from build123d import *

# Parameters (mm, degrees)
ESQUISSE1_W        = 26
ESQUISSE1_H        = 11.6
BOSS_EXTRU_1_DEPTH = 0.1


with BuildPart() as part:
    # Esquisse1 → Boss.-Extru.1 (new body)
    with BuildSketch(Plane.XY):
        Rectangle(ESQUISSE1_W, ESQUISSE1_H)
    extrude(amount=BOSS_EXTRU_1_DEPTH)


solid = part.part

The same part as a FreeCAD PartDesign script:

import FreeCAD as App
import Part
import Sketcher

doc = App.newDocument("Part")
body = doc.addObject("PartDesign::Body", "Body")

sketch1 = body.newObject("Sketcher::SketchObject", "Sketch")
sketch1.AttachmentSupport = (doc.getObject("XY_Plane"), [""])
sketch1.MapMode = "FlatFace"
sketch1.addGeometry([
    Part.LineSegment(App.Vector(-13, 6, 0), App.Vector(-13, -6, 0)),
    Part.LineSegment(App.Vector(-13, -6, 0), App.Vector(13, -6, 0)),
    Part.LineSegment(App.Vector(13, -6, 0), App.Vector(13, 6, 0)),
    Part.LineSegment(App.Vector(13, 6, 0), App.Vector(-13, 6, 0)),
], False)
sketch1.addConstraint([
    Sketcher.Constraint("Coincident", 0, 2, 1, 1),
    Sketcher.Constraint("Coincident", 1, 2, 2, 1),
    Sketcher.Constraint("Coincident", 2, 2, 3, 1),
    Sketcher.Constraint("Coincident", 3, 2, 0, 1),
    Sketcher.Constraint("Vertical", 0),
    Sketcher.Constraint("Horizontal", 1),
    Sketcher.Constraint("Vertical", 2),
    Sketcher.Constraint("Horizontal", 3),
    Sketcher.Constraint("Symmetric", 0, 2, 2, 2, -1, 1),
    Sketcher.Constraint("DistanceX", 1, 1, 1, 2, 26.0),
    Sketcher.Constraint("DistanceY", 0, 2, 0, 1, 11.6),
])
pad1 = body.newObject("PartDesign::Pad", "Pad")
pad1.Profile = sketch1
pad1.Length = 0.1

doc.recompute()
